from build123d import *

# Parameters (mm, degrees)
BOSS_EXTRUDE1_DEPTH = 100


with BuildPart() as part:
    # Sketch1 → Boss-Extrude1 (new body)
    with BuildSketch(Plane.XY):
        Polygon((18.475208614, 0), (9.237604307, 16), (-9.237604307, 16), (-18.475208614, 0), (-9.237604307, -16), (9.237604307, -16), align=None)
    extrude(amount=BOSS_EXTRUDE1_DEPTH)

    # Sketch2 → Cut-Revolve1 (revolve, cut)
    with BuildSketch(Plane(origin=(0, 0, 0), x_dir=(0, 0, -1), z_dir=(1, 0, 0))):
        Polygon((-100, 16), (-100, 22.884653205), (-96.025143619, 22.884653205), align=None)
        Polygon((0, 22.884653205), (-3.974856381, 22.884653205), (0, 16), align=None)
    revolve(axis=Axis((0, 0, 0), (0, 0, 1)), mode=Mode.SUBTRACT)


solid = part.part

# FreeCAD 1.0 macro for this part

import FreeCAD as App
import Part
import Sketcher
Q = App.Units.Quantity


def add_polygon(sketch, points):
    """Adds a closed chain of lines whose ends are joined by coincident constraints."""
    first, n = sketch.GeometryCount, len(points)
    for a, b in zip(points, points[1:] + points[:1]):
        sketch.addGeometry(Part.LineSegment(App.Vector(*a, 0), App.Vector(*b, 0)), False)
    for i in range(n):
        sketch.addConstraint(Sketcher.Constraint("Coincident", first + i, 2, first + (i + 1) % n, 1))

doc = App.newDocument("Part")
params = doc.addObject("Spreadsheet::Sheet", "Params")
for row, (alias, value) in enumerate([
    ("pad1_length", "100 mm"),
    ("groove_angle", "360 deg"),
], start=1):
    params.set(f"A{row}", alias)
    params.set(f"B{row}", "=" + value)
    params.setAlias(f"B{row}", alias)

body = doc.addObject("PartDesign::Body", "Body")

sketch1 = doc.addObject("Sketcher::SketchObject", "Sketch")
body.addObject(sketch1)
sketch1.AttachmentSupport = (doc.XY_Plane, [""])
sketch1.MapMode = "FlatFace"
add_polygon(sketch1, [(18, 0), (9, 16), (-9, 16), (-18, 0), (-9, -16), (9, -16)])
sketch1.addConstraint(Sketcher.Constraint("Horizontal", 1))
sketch1.addConstraint(Sketcher.Constraint("Horizontal", 4))
sketch1.addConstraint(Sketcher.Constraint("Symmetric", 0, 2, 3, 2, -1, 1))
sketch1.addConstraint(Sketcher.Constraint("Symmetric", 2, 2, 5, 2, -1, 1))
sketch1.addConstraint(Sketcher.Constraint("PointOnObject", 2, 2, -1))
sketch1.addConstraint(Sketcher.Constraint("Parallel", 2, 5))
sketch1.addConstraint(Sketcher.Constraint("Vertical", 1, 2, 3, 2))
sketch1.addConstraint(Sketcher.Constraint("Angle", 0, Q("120 deg")))
sketch1.addConstraint(Sketcher.Constraint("DistanceY", -1, 1, 0, 2, Q("16 mm")))
sketch1.addConstraint(Sketcher.Constraint("DistanceX", 1, 2, 1, 1, Q("18.475209 mm")))
pad1 = doc.addObject("PartDesign::Pad", "Pad")
body.addObject(pad1)
pad1.Profile = sketch1
pad1.setExpression("Length", "Params.pad1_length")

sketch2 = doc.addObject("Sketcher::SketchObject", "Sketch001")
body.addObject(sketch2)
sketch2.AttachmentSupport = (doc.YZ_Plane, [""])
sketch2.MapMode = "FlatFace"
add_polygon(sketch2, [(22.9, 100), (16, 100), (22.9, 96)])
add_polygon(sketch2, [(22.9, 0), (22.9, 4), (16, 0)])
sketch2.addConstraint(Sketcher.Constraint("Horizontal", 0))
sketch2.addConstraint(Sketcher.Constraint("Vertical", 2))
sketch2.addConstraint(Sketcher.Constraint("Vertical", 3))
sketch2.addConstraint(Sketcher.Constraint("Horizontal", 5))
sketch2.addConstraint(Sketcher.Constraint("PointOnObject", 4, 2, -1))
sketch2.addConstraint(Sketcher.Constraint("Vertical", 2, 2, 3, 2))
sketch2.addConstraint(Sketcher.Constraint("Vertical", 0, 2, 4, 2))
sketch2.addConstraint(Sketcher.Constraint("Equal", 2, 3))
sketch2.addConstraint(Sketcher.Constraint("Angle", 1, Q("-30 deg")))
sketch2.addConstraint(Sketcher.Constraint("DistanceX", -1, 1, 0, 2, Q("16 mm")))
sketch2.addConstraint(Sketcher.Constraint("DistanceY", -1, 1, 0, 2, Q("100 mm")))
sketch2.addConstraint(Sketcher.Constraint("DistanceX", 0, 2, 0, 1, Q("6.884653 mm")))
groove = doc.addObject("PartDesign::Groove", "Groove")
body.addObject(groove)
groove.Profile = sketch2
groove.ReferenceAxis = (sketch2, ["V_Axis"])
groove.setExpression("Angle", "Params.groove_angle")

doc.recompute()
